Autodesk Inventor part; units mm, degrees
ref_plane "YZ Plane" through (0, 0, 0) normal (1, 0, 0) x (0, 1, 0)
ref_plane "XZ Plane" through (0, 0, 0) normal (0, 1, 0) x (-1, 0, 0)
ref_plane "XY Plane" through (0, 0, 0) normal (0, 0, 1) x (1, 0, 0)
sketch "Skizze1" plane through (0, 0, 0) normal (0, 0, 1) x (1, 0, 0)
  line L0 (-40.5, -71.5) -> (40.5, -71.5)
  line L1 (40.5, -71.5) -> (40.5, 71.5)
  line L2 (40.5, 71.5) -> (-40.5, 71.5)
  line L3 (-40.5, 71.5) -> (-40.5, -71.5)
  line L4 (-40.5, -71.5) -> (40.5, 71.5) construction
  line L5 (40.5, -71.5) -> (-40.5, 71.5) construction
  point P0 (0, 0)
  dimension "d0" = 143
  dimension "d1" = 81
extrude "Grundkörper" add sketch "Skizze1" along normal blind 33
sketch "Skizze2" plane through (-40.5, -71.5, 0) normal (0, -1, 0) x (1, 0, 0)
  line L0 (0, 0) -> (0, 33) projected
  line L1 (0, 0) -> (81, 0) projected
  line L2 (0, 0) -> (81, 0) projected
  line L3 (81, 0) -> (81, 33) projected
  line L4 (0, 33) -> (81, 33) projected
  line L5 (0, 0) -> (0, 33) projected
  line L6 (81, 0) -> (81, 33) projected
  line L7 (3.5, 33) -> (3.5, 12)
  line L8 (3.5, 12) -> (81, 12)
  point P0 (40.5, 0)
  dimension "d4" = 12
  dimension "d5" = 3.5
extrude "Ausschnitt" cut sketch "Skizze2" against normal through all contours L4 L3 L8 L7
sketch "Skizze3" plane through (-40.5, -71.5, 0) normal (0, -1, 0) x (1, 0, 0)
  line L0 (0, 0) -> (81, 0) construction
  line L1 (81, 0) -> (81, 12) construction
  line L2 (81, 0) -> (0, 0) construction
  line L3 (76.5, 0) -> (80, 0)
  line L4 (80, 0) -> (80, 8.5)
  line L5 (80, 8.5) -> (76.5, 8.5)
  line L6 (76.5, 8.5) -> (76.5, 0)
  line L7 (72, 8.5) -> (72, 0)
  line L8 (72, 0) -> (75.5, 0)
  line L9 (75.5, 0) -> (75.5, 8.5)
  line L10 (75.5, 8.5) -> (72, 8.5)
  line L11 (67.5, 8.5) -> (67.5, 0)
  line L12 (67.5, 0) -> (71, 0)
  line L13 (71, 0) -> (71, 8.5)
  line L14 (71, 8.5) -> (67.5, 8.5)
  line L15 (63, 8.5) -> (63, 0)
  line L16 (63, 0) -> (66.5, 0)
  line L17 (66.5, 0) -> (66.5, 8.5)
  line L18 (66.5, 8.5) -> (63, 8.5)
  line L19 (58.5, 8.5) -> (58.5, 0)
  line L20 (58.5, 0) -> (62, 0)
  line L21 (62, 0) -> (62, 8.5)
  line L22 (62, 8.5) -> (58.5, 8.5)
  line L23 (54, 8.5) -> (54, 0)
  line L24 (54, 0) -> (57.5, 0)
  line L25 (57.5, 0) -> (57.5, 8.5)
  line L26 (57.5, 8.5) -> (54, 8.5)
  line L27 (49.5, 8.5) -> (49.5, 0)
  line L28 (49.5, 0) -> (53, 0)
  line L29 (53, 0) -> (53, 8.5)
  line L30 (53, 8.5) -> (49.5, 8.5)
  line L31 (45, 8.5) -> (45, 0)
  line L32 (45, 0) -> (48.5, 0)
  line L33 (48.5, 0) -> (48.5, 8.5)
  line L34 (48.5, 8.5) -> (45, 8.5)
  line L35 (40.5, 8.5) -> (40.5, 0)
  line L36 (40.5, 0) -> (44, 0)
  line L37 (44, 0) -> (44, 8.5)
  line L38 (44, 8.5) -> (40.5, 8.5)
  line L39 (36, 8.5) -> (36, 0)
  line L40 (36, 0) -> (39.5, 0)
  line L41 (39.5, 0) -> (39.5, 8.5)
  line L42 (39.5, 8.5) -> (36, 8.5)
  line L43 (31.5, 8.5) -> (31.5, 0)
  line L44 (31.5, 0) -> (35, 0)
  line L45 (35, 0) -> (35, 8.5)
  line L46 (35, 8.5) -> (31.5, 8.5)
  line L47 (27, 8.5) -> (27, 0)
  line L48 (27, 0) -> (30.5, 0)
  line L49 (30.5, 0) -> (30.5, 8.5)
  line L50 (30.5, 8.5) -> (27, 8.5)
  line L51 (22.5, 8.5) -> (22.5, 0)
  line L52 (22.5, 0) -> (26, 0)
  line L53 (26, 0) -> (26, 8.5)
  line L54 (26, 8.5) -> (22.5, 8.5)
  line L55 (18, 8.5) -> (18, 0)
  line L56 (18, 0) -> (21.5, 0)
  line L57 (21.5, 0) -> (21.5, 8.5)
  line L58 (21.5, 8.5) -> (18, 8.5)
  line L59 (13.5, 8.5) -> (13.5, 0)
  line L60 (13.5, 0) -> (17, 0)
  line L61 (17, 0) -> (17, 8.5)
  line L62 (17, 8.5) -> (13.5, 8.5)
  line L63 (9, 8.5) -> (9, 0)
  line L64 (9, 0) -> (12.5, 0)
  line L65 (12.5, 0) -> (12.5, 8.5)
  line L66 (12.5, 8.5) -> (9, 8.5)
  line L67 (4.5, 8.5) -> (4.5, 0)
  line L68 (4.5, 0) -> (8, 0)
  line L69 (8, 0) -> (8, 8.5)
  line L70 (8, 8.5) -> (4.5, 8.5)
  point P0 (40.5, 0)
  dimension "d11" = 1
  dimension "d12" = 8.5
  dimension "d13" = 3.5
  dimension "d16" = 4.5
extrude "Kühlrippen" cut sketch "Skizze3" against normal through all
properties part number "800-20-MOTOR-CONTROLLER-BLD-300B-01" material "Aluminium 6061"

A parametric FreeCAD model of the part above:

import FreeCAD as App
import Part
import Sketcher


def add_polygon(sketch, points):
    """Adds a closed chain of lines whose ends are joined by coincident constraints."""
    first, n = sketch.GeometryCount, len(points)
    for a, b in zip(points, points[1:] + points[:1]):
        sketch.addGeometry(Part.LineSegment(App.Vector(*a, 0), App.Vector(*b, 0)), False)
    for i in range(n):
        sketch.addConstraint(Sketcher.Constraint("Coincident", first + i, 2, first + (i + 1) % n, 1))

doc = App.newDocument("Part")
body = doc.addObject("PartDesign::Body", "Body")

# Sketch on XY plane
sketch1 = doc.addObject("Sketcher::SketchObject", "Sketch")
body.addObject(sketch1)
sketch1.AttachmentSupport = (doc.XY_Plane, [""])
sketch1.MapMode = "FlatFace"
add_polygon(sketch1, [(-40.5, 71.5), (-40.5, -71.5), (40.5, -71.5), (40.5, 71.5)])  # lines 0-3
sketch1.addConstraint([
    Sketcher.Constraint("Vertical", 0),
    Sketcher.Constraint("Horizontal", 1),
    Sketcher.Constraint("Vertical", 2),
    Sketcher.Constraint("Horizontal", 3),
    Sketcher.Constraint("Symmetric", 0, 2, 2, 2, -1, 1),
    Sketcher.Constraint("DistanceX", 1, 1, 1, 2, 81.0),
    Sketcher.Constraint("DistanceY", 0, 2, 0, 1, 143.0),
])
pad1 = doc.addObject("PartDesign::Pad", "Pad")
body.addObject(pad1)
pad1.Profile = sketch1
pad1.Length = 33

# Sketch on XZ plane
sketch2 = doc.addObject("Sketcher::SketchObject", "Sketch001")
body.addObject(sketch2)
sketch2.AttachmentSupport = (doc.XZ_Plane, [""])
sketch2.MapMode = "FlatFace"
sketch2.AttachmentOffset = App.Placement(App.Vector(0, 0, 71.5), App.Rotation())
add_polygon(sketch2, [(40.5, 33), (-37, 33), (-37, 12), (40.5, 12)])  # lines 0-3
sketch2.addConstraint([
    Sketcher.Constraint("Horizontal", 0),
    Sketcher.Constraint("Vertical", 1),
    Sketcher.Constraint("Horizontal", 2),
    Sketcher.Constraint("Vertical", 3),
    Sketcher.Constraint("DistanceY", -1, 1, 1, 2, 12.0),
    Sketcher.Constraint("DistanceY", 1, 2, 1, 1, 21.0),
    Sketcher.Constraint("DistanceX", 0, 2, 0, 1, 77.5),
    Sketcher.Constraint("DistanceX", 0, 2, -1, 1, 37.0),
])
pocket1 = doc.addObject("PartDesign::Pocket", "Pocket")
body.addObject(pocket1)
pocket1.Profile = sketch2
pocket1.Type = "ThroughAll"

# Sketch on XZ plane
sketch3 = doc.addObject("Sketcher::SketchObject", "Sketch002")
body.addObject(sketch3)
sketch3.AttachmentSupport = (doc.XZ_Plane, [""])
sketch3.MapMode = "FlatFace"
sketch3.AttachmentOffset = App.Placement(App.Vector(0, 0, 71.5), App.Rotation())
add_polygon(sketch3, [(36, 8.5), (36, 0), (39.5, 0), (39.5, 8.5)])  # lines 0-3
add_polygon(sketch3, [(35, 8.5), (31.5, 8.5), (31.5, 0), (35, 0)])  # lines 4-7
add_polygon(sketch3, [(30.5, 8.5), (27, 8.5), (27, 0), (30.5, 0)])  # lines 8-11
add_polygon(sketch3, [(26, 8.5), (22.5, 8.5), (22.5, 0), (26, 0)])  # lines 12-15
add_polygon(sketch3, [(21.5, 8.5), (18, 8.5), (18, 0), (21.5, 0)])  # lines 16-19
add_polygon(sketch3, [(17, 8.5), (13.5, 8.5), (13.5, 0), (17, 0)])  # lines 20-23
add_polygon(sketch3, [(12.5, 8.5), (9, 8.5), (9, 0), (12.5, 0)])  # lines 24-27
add_polygon(sketch3, [(8, 8.5), (4.5, 8.5), (4.5, 0), (8, 0)])  # lines 28-31
add_polygon(sketch3, [(3.5, 8.5), (0, 8.5), (0, 0), (3.5, 0)])  # lines 32-35
add_polygon(sketch3, [(-1, 8.5), (-4.5, 8.5), (-4.5, 0), (-1, 0)])  # lines 36-39
add_polygon(sketch3, [(-5.5, 8.5), (-9, 8.5), (-9, 0), (-5.5, 0)])  # lines 40-43
add_polygon(sketch3, [(-10, 8.5), (-13.5, 8.5), (-13.5, 0), (-10, 0)])  # lines 44-47
add_polygon(sketch3, [(-14.5, 8.5), (-18, 8.5), (-18, 0), (-14.5, 0)])  # lines 48-51
add_polygon(sketch3, [(-19, 8.5), (-22.5, 8.5), (-22.5, 0), (-19, 0)])  # lines 52-55
add_polygon(sketch3, [(-23.5, 8.5), (-27, 8.5), (-27, 0), (-23.5, 0)])  # lines 56-59
add_polygon(sketch3, [(-28, 8.5), (-31.5, 8.5), (-31.5, 0), (-28, 0)])  # lines 60-63
add_polygon(sketch3, [(-32.5, 8.5), (-36, 8.5), (-36, 0), (-32.5, 0)])  # lines 64-67
sketch3.addConstraint([
    Sketcher.Constraint("Vertical", 0),
    Sketcher.Constraint("Horizontal", 1),
    Sketcher.Constraint("Vertical", 2),
    Sketcher.Constraint("Horizontal", 3),
    Sketcher.Constraint("Horizontal", 4),
    Sketcher.Constraint("Vertical", 5),
    Sketcher.Constraint("Horizontal", 6),
    Sketcher.Constraint("Vertical", 7),
    Sketcher.Constraint("Horizontal", 8),
    Sketcher.Constraint("Vertical", 9),
    Sketcher.Constraint("Horizontal", 10),
    Sketcher.Constraint("Vertical", 11),
    Sketcher.Constraint("Horizontal", 12),
    Sketcher.Constraint("Vertical", 13),
    Sketcher.Constraint("Horizontal", 14),
    Sketcher.Constraint("Vertical", 15),
    Sketcher.Constraint("Horizontal", 16),
    Sketcher.Constraint("Vertical", 17),
    Sketcher.Constraint("Horizontal", 18),
    Sketcher.Constraint("Vertical", 19),
    Sketcher.Constraint("Horizontal", 20),
    Sketcher.Constraint("Vertical", 21),
    Sketcher.Constraint("Horizontal", 22),
    Sketcher.Constraint("Vertical", 23),
    Sketcher.Constraint("Horizontal", 24),
    Sketcher.Constraint("Vertical", 25),
    Sketcher.Constraint("Horizontal", 26),
    Sketcher.Constraint("Vertical", 27),
    Sketcher.Constraint("Horizontal", 28),
    Sketcher.Constraint("Vertical", 29),
    Sketcher.Constraint("Horizontal", 30),
    Sketcher.Constraint("Vertical", 31),
    Sketcher.Constraint("Horizontal", 32),
    Sketcher.Constraint("Vertical", 33),
    Sketcher.Constraint("Horizontal", 34),
    Sketcher.Constraint("Vertical", 35),
    Sketcher.Constraint("Horizontal", 36),
    Sketcher.Constraint("Vertical", 37),
    Sketcher.Constraint("Horizontal", 38),
    Sketcher.Constraint("Vertical", 39),
    Sketcher.Constraint("Horizontal", 40),
    Sketcher.Constraint("Vertical", 41),
    Sketcher.Constraint("Horizontal", 42),
    Sketcher.Constraint("Vertical", 43),
    Sketcher.Constraint("Horizontal", 44),
    Sketcher.Constraint("Vertical", 45),
    Sketcher.Constraint("Horizontal", 46),
    Sketcher.Constraint("Vertical", 47),
    Sketcher.Constraint("Horizontal", 48),
    Sketcher.Constraint("Vertical", 49),
    Sketcher.Constraint("Horizontal", 50),
    Sketcher.Constraint("Vertical", 51),
    Sketcher.Constraint("Horizontal", 52),
    Sketcher.Constraint("Vertical", 53),
    Sketcher.Constraint("Horizontal", 54),
    Sketcher.Constraint("Vertical", 55),
    Sketcher.Constraint("Horizontal", 56),
    Sketcher.Constraint("Vertical", 57),
    Sketcher.Constraint("Horizontal", 58),
    Sketcher.Constraint("Vertical", 59),
    Sketcher.Constraint("Horizontal", 60),
    Sketcher.Constraint("Vertical", 61),
    Sketcher.Constraint("Horizontal", 62),
    Sketcher.Constraint("Vertical", 63),
    Sketcher.Constraint("Horizontal", 64),
    Sketcher.Constraint("Vertical", 65),
    Sketcher.Constraint("Horizontal", 66),
    Sketcher.Constraint("Vertical", 67),
    Sketcher.Constraint("Coincident", 33, 2, -1, 1),
    Sketcher.Constraint("Symmetric", 29, 2, 37, 2, -1, 1),
    Sketcher.Constraint("Symmetric", 25, 2, 41, 2, -1, 1),
    Sketcher.Constraint("Symmetric", 21, 2, 45, 2, -1, 1),
    Sketcher.Constraint("Symmetric", 17, 2, 49, 2, -1, 1),
    Sketcher.Constraint("Symmetric", 13, 2, 53, 2, -1, 1),
    Sketcher.Constraint("Symmetric", 9, 2, 57, 2, -1, 1),
    Sketcher.Constraint("Symmetric", 5, 2, 61, 2, -1, 1),
    Sketcher.Constraint("Symmetric", 0, 2, 65, 2, -1, 1),
    Sketcher.Constraint("PointOnObject", 0, 2, -1),
    Sketcher.Constraint("PointOnObject", 5, 2, -1),
    Sketcher.Constraint("PointOnObject", 9, 2, -1),
    Sketcher.Constraint("PointOnObject", 13, 2, -1),
    Sketcher.Constraint("PointOnObject", 17, 2, -1),
    Sketcher.Constraint("PointOnObject", 21, 2, -1),
    Sketcher.Constraint("PointOnObject", 25, 2, -1),
    Sketcher.Constraint("PointOnObject", 29, 2, -1),
    Sketcher.Constraint("Horizontal", 3, 2, 4, 2),
    Sketcher.Constraint("Horizontal", 7, 2, 8, 2),
    Sketcher.Constraint("Horizontal", 11, 2, 12, 2),
    Sketcher.Constraint("Horizontal", 15, 2, 16, 2),
    Sketcher.Constraint("Horizontal", 19, 2, 20, 2),
    Sketcher.Constraint("Horizontal", 23, 2, 24, 2),
    Sketcher.Constraint("Horizontal", 27, 2, 28, 2),
    Sketcher.Constraint("Horizontal", 31, 2, 32, 2),
    Sketcher.Constraint("Horizontal", 35, 2, 36, 2),
    Sketcher.Constraint("Horizontal", 39, 2, 40, 2),
    Sketcher.Constraint("Horizontal", 43, 2, 44, 2),
    Sketcher.Constraint("Horizontal", 47, 2, 48, 2),
    Sketcher.Constraint("Horizontal", 51, 2, 52, 2),
    Sketcher.Constraint("Horizontal", 55, 2, 56, 2),
    Sketcher.Constraint("Horizontal", 59, 2, 60, 2),
    Sketcher.Constraint("Horizontal", 63, 2, 64, 2),
    Sketcher.Constraint("Equal", 3, 4),
    Sketcher.Constraint("Equal", 6, 8),
    Sketcher.Constraint("Equal", 10, 12),
    Sketcher.Constraint("Equal", 14, 16),
    Sketcher.Constraint("Equal", 18, 20),
    Sketcher.Constraint("Equal", 22, 24),
    Sketcher.Constraint("Equal", 26, 28),
    Sketcher.Constraint("Equal", 30, 32),
    Sketcher.Constraint("Equal", 34, 36),
    Sketcher.Constraint("Equal", 38, 40),
    Sketcher.Constraint("Equal", 42, 44),
    Sketcher.Constraint("Equal", 46, 48),
    Sketcher.Constraint("Equal", 50, 52),
    Sketcher.Constraint("Equal", 54, 56),
    Sketcher.Constraint("Equal", 58, 60),
    Sketcher.Constraint("Equal", 62, 64),
    Sketcher.Constraint("DistanceX", 1, 1, 1, 2, 3.5),
    Sketcher.Constraint("DistanceY", 0, 2, 0, 1, 8.5),
    Sketcher.Constraint("DistanceX", 38, 2, -1, 1, 1.0),
    Sketcher.Constraint("DistanceX", -1, 1, 0, 2, 36.0),
    Sketcher.Constraint("DistanceX", -1, 1, 6, 2, 35.0),
    Sketcher.Constraint("DistanceX", -1, 1, 8, 2, 27.0),
    Sketcher.Constraint("DistanceX", -1, 1, 14, 2, 26.0),
    Sketcher.Constraint("DistanceX", -1, 1, 16, 2, 18.0),
    Sketcher.Constraint("DistanceX", -1, 1, 22, 2, 17.0),
    Sketcher.Constraint("DistanceX", -1, 1, 24, 2, 9.0),
])
pocket2 = doc.addObject("PartDesign::Pocket", "Pocket001")
body.addObject(pocket2)
pocket2.Profile = sketch3
pocket2.Type = "ThroughAll"

doc.recompute()
